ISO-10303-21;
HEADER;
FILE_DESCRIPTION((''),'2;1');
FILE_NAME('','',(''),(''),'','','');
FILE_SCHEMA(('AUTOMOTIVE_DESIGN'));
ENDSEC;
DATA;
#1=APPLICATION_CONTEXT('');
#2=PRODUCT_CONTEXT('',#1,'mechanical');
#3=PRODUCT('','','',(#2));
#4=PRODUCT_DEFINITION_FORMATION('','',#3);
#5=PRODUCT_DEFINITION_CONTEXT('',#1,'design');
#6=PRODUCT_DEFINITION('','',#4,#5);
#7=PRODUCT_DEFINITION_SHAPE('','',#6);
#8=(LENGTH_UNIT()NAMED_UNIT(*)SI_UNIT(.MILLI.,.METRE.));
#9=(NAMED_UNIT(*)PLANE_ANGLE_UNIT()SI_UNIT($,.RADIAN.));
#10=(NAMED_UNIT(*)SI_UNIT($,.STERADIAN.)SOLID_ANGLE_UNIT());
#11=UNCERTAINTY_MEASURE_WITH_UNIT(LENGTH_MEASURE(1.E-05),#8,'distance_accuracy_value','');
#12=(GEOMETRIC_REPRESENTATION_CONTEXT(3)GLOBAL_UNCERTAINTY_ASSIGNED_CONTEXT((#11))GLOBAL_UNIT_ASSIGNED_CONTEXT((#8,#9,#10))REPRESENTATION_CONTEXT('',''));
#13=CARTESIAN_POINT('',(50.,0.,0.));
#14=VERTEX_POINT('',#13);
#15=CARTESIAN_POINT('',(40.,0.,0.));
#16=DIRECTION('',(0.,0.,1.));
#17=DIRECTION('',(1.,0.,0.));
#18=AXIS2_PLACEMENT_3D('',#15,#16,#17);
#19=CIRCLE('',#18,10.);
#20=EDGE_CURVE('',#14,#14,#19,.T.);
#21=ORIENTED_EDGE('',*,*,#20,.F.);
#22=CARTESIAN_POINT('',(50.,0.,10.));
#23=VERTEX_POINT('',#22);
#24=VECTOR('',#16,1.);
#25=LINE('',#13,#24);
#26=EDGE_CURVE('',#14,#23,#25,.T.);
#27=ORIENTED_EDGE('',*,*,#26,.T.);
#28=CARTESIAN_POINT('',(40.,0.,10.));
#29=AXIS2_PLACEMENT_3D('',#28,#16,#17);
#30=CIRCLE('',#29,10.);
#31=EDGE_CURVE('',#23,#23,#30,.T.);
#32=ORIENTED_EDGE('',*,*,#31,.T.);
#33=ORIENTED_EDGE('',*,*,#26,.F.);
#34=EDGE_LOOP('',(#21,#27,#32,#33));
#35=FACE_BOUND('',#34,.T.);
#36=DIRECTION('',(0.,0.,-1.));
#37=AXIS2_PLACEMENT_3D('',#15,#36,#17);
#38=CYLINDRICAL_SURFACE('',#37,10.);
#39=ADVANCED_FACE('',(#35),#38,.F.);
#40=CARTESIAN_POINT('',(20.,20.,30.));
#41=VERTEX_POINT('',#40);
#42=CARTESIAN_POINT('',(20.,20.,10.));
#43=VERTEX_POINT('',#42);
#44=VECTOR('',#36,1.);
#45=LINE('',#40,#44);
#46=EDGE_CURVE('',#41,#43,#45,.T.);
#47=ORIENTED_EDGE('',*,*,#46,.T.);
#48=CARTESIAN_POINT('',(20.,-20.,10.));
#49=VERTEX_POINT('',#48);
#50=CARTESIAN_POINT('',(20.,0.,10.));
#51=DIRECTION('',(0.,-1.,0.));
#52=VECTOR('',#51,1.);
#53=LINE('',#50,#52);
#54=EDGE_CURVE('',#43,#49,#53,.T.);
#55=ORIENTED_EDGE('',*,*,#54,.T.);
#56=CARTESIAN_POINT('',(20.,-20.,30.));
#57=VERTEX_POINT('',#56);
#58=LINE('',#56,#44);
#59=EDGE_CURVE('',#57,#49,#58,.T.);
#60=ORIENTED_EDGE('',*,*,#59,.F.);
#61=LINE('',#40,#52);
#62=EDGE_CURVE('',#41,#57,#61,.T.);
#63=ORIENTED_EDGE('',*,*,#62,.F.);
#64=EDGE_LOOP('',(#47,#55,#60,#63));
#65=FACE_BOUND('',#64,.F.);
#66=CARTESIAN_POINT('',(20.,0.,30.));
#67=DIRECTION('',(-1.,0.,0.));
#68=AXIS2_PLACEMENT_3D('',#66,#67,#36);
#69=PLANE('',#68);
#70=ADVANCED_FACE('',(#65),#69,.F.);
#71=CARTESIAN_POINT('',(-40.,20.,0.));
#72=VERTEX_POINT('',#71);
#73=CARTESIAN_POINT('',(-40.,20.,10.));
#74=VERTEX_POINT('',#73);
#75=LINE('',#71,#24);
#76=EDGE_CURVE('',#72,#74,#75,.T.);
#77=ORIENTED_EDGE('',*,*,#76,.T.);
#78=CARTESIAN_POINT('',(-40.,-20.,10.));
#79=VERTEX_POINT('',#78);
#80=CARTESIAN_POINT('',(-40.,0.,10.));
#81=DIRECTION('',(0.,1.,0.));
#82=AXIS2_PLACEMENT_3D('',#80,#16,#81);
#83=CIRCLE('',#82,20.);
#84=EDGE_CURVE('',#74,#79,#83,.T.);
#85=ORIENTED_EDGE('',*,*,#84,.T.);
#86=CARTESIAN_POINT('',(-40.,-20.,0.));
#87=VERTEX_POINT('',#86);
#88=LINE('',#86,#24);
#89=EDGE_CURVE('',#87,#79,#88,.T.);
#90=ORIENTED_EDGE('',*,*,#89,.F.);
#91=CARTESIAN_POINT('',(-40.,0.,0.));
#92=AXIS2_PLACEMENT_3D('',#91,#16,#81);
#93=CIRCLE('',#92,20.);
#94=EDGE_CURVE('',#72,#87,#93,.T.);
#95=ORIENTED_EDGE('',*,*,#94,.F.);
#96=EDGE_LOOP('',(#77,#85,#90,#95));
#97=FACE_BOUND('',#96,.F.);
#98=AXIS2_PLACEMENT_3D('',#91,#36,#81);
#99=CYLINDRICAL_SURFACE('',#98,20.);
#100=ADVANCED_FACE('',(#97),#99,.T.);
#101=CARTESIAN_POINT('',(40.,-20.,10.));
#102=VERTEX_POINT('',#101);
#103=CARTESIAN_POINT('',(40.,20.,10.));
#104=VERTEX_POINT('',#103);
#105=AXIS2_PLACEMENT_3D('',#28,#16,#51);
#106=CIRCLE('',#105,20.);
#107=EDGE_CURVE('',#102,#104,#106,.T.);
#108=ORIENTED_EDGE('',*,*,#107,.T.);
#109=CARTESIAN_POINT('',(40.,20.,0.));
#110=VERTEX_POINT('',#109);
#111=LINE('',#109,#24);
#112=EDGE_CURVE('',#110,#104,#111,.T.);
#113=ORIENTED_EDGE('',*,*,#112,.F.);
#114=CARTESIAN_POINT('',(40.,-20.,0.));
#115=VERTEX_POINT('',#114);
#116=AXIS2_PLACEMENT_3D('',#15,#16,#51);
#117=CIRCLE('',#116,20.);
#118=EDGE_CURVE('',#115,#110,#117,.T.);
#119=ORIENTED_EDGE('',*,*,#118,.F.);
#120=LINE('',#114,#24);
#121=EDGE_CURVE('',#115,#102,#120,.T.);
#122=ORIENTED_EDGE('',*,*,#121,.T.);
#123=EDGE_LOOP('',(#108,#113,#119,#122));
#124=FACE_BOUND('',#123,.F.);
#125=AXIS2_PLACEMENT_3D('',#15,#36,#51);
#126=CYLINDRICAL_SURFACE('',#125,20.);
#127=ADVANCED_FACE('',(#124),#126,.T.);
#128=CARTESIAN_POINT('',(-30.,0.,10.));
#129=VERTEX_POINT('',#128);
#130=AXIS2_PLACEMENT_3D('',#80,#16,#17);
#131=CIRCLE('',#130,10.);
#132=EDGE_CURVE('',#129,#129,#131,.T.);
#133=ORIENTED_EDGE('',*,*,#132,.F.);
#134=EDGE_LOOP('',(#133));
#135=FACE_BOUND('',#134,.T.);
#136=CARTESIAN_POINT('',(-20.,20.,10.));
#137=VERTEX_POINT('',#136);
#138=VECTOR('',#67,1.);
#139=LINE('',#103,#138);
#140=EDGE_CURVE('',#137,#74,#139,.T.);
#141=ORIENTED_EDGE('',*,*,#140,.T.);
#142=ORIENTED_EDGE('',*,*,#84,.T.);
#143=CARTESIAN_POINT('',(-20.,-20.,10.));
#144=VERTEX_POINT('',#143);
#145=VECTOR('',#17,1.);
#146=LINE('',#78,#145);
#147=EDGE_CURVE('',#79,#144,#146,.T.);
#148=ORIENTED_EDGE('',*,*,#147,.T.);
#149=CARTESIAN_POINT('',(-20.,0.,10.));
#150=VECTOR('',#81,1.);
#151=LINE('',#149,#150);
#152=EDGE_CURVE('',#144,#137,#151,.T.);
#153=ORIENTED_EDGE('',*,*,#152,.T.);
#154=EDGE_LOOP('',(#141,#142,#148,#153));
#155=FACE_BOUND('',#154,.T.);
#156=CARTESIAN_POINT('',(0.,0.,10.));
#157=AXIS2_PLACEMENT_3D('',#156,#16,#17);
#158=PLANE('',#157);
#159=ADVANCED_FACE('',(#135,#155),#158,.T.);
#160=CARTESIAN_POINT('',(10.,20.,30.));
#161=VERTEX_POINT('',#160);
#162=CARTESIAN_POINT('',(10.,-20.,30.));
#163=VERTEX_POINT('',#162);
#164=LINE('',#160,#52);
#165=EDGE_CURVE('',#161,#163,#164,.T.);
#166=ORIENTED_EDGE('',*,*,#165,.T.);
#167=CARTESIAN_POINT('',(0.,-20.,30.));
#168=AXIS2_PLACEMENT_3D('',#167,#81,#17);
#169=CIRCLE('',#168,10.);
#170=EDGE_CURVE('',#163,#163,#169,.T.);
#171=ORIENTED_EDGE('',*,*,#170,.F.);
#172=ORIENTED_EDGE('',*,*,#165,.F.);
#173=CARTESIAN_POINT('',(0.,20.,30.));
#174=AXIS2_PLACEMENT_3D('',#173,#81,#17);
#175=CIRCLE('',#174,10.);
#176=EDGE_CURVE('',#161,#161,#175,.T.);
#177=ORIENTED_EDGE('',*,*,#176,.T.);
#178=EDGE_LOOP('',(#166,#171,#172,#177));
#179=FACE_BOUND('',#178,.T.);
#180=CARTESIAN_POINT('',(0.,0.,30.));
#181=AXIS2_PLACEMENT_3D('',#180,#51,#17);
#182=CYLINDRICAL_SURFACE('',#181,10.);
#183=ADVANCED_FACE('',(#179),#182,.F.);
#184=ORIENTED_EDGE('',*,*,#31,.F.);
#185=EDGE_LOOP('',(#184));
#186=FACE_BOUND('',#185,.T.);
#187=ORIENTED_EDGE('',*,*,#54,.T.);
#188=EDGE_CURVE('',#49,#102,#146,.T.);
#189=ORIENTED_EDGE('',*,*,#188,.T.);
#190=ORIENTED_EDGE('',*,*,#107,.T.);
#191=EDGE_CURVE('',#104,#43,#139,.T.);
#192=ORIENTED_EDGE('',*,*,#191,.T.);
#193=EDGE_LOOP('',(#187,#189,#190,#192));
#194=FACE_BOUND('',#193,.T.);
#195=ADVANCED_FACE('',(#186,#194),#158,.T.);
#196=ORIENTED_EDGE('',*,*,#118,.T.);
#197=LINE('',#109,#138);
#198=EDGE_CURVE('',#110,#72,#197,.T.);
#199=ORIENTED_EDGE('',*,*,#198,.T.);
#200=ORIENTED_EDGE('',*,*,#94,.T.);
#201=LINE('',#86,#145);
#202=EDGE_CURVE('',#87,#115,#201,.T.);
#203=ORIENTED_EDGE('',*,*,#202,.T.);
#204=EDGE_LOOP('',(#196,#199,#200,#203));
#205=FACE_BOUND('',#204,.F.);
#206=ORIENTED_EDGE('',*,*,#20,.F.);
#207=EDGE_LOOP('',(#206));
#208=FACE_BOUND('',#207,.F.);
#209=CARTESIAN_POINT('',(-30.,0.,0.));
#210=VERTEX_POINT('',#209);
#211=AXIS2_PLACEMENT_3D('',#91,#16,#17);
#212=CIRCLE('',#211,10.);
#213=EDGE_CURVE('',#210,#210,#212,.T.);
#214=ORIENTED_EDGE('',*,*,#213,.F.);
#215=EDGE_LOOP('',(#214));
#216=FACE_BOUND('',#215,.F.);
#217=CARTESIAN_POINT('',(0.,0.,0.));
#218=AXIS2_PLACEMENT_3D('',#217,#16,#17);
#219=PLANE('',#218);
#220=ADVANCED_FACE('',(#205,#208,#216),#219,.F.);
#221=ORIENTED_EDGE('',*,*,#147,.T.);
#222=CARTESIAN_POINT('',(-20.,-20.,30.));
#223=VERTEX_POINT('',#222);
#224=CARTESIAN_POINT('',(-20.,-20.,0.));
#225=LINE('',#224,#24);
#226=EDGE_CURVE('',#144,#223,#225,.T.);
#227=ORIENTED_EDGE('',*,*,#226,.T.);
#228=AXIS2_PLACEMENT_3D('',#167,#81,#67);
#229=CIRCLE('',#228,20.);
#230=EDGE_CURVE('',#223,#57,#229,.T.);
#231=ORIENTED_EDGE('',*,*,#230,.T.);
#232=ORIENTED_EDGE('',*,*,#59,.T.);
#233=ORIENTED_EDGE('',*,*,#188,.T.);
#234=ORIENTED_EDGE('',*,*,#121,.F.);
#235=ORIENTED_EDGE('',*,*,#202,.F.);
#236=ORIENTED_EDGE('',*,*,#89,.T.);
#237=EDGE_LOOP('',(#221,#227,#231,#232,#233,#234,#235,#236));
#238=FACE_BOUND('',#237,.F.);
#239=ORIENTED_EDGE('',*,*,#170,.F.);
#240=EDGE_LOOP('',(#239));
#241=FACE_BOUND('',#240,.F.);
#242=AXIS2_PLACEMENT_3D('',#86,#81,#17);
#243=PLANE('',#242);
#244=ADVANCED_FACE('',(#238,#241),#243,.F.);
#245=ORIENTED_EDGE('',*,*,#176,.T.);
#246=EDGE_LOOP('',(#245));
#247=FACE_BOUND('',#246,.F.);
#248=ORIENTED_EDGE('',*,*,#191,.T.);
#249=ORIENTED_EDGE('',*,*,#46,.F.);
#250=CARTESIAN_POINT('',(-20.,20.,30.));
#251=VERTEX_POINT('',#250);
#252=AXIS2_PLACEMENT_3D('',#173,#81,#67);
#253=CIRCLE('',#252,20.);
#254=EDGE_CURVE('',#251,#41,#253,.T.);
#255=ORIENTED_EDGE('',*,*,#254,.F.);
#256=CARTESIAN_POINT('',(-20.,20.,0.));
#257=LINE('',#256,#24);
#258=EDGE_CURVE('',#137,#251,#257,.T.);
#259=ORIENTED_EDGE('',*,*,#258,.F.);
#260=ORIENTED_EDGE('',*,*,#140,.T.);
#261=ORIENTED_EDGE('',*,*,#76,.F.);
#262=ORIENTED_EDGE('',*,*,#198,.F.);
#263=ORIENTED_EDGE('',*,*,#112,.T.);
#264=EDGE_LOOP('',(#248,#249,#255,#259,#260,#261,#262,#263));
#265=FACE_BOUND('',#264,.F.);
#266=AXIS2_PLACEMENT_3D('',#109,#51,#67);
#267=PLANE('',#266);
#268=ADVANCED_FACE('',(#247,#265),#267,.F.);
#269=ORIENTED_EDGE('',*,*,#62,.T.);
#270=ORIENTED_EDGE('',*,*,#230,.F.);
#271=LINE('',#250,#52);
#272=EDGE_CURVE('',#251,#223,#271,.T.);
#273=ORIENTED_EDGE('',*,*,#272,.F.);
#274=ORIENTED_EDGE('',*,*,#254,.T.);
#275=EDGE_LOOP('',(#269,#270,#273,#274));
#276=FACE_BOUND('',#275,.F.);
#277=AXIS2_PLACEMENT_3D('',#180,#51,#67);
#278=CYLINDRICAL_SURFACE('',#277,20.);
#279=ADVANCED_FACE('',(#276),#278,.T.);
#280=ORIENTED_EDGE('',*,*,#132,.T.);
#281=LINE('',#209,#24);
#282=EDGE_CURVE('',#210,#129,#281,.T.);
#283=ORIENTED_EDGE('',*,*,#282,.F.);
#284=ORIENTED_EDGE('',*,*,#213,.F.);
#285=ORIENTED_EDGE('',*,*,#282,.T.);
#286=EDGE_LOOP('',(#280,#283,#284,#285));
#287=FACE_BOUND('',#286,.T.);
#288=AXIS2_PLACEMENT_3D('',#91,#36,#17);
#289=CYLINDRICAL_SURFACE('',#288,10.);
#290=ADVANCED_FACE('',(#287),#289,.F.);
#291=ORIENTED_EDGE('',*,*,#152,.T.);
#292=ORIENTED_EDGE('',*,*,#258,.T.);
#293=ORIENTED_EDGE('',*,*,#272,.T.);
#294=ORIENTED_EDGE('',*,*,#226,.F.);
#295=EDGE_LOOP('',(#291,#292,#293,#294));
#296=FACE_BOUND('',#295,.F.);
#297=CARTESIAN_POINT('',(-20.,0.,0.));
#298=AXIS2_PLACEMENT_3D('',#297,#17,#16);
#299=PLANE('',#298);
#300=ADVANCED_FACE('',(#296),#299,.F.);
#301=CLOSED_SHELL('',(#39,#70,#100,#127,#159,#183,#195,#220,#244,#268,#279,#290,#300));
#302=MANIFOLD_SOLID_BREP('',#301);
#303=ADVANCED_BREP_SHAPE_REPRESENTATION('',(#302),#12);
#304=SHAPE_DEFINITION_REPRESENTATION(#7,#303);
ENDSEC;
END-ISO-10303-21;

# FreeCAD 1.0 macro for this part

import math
import FreeCAD as App
import Part
import Sketcher
Q = App.Units.Quantity

doc = App.newDocument("Part")
params = doc.addObject("Spreadsheet::Sheet", "Params")
for row, (alias, value) in enumerate([
    ("sketch1_radius", "20 mm"),
    ("sketch1_width", "80 mm"),
    ("sketch1_diameter", "20 mm"),
    ("pad1_length", "10 mm"),
    ("sketch2_diameter", "20 mm"),
    ("sketch2_radius", "20 mm"),
    ("sketch2_height", "30 mm"),
    ("pad2_length", "40 mm"),
], start=1):
    params.set(f"A{row}", alias)
    params.set(f"B{row}", "=" + value)
    params.setAlias(f"B{row}", alias)

body = doc.addObject("PartDesign::Body", "Body")

sketch1 = body.newObject("Sketcher::SketchObject", "Sketch")
sketch1.AttachmentSupport = (doc.getObject("XY_Plane"), [""])
sketch1.MapMode = "FlatFace"
sketch1.addGeometry(Part.ArcOfCircle(Part.Circle(App.Vector(40, 0, 0), App.Vector(0, 0, 1), 20), math.radians(-90), math.radians(90)), False)
sketch1.addGeometry(Part.LineSegment(App.Vector(40, 20, 0), App.Vector(-40, 20, 0)), False)
sketch1.addGeometry(Part.ArcOfCircle(Part.Circle(App.Vector(-40, 0, 0), App.Vector(0, 0, 1), 20), math.radians(90), math.radians(270)), False)
sketch1.addGeometry(Part.LineSegment(App.Vector(-40, -20, 0), App.Vector(40, -20, 0)), False)
sketch1.addGeometry(Part.Circle(App.Vector(-40, 0, 0), App.Vector(0, 0, 1), 10), False)
sketch1.addGeometry(Part.Circle(App.Vector(40, 0, 0), App.Vector(0, 0, 1), 10), False)
sketch1.addConstraint(Sketcher.Constraint("Tangent", 0, 2, 1, 1))
sketch1.addConstraint(Sketcher.Constraint("Tangent", 1, 2, 2, 1))
sketch1.addConstraint(Sketcher.Constraint("Tangent", 2, 2, 3, 1))
sketch1.addConstraint(Sketcher.Constraint("Tangent", 3, 2, 0, 1))
sketch1.addConstraint(Sketcher.Constraint("Horizontal", 1))
sketch1.addConstraint(Sketcher.Constraint("Horizontal", 3))
sketch1.addConstraint(Sketcher.Constraint("Coincident", 4, 3, 2, 3))
sketch1.addConstraint(Sketcher.Constraint("Coincident", 5, 3, 0, 3))
sketch1.addConstraint(Sketcher.Constraint("Equal", 4, 5))
sketch1.addConstraint(Sketcher.Constraint("Symmetric", 0, 3, 2, 3, -1, 1))
sketch1.addConstraint(Sketcher.Constraint("Radius", 0, Q("20 mm")))
sketch1.addConstraint(Sketcher.Constraint("DistanceX", 1, 2, 1, 1, Q("80 mm")))
sketch1.addConstraint(Sketcher.Constraint("Diameter", 4, Q("20 mm")))
sketch1.setExpression("Constraints[10]", "Params.sketch1_radius")
sketch1.setExpression("Constraints[11]", "Params.sketch1_width")
sketch1.setExpression("Constraints[12]", "Params.sketch1_diameter")
pad1 = body.newObject("PartDesign::Pad", "Pad")
pad1.Profile = sketch1
pad1.setExpression("Length", "Params.pad1_length")

sketch2 = body.newObject("Sketcher::SketchObject", "Sketch001")
sketch2.AttachmentSupport = (doc.getObject("XZ_Plane"), [""])
sketch2.MapMode = "FlatFace"
sketch2.addGeometry(Part.LineSegment(App.Vector(20, 30, 0), App.Vector(20, 0, 0)), False)
sketch2.addGeometry(Part.LineSegment(App.Vector(20, 0, 0), App.Vector(-20, 0, 0)), False)
sketch2.addGeometry(Part.LineSegment(App.Vector(-20, 0, 0), App.Vector(-20, 30, 0)), False)
sketch2.addGeometry(Part.ArcOfCircle(Part.Circle(App.Vector(0, 30, 0), App.Vector(0, 0, 1), 20), math.radians(0), math.radians(180)), False)
sketch2.addGeometry(Part.Circle(App.Vector(0, 30, 0), App.Vector(0, 0, 1), 10), False)
sketch2.addConstraint(Sketcher.Constraint("Coincident", 0, 2, 1, 1))
sketch2.addConstraint(Sketcher.Constraint("Coincident", 1, 2, 2, 1))
sketch2.addConstraint(Sketcher.Constraint("Tangent", 2, 2, 3, 2))
sketch2.addConstraint(Sketcher.Constraint("Tangent", 3, 1, 0, 1))
sketch2.addConstraint(Sketcher.Constraint("Vertical", 0))
sketch2.addConstraint(Sketcher.Constraint("Horizontal", 1))
sketch2.addConstraint(Sketcher.Constraint("Vertical", 2))
sketch2.addConstraint(Sketcher.Constraint("Coincident", 4, 3, 3, 3))
sketch2.addConstraint(Sketcher.Constraint("Symmetric", 0, 2, 1, 2, -1, 1))
sketch2.addConstraint(Sketcher.Constraint("Diameter", 4, Q("20 mm")))
sketch2.addConstraint(Sketcher.Constraint("Radius", 3, Q("20 mm")))
sketch2.addConstraint(Sketcher.Constraint("DistanceY", 0, 2, 0, 1, Q("30 mm")))
sketch2.setExpression("Constraints[9]", "Params.sketch2_diameter")
sketch2.setExpression("Constraints[10]", "Params.sketch2_radius")
sketch2.setExpression("Constraints[11]", "Params.sketch2_height")
pad2 = body.newObject("PartDesign::Pad", "Pad001")
pad2.Profile = sketch2
pad2.setExpression("Length", "Params.pad2_length")
pad2.Midplane = True

doc.recompute()
